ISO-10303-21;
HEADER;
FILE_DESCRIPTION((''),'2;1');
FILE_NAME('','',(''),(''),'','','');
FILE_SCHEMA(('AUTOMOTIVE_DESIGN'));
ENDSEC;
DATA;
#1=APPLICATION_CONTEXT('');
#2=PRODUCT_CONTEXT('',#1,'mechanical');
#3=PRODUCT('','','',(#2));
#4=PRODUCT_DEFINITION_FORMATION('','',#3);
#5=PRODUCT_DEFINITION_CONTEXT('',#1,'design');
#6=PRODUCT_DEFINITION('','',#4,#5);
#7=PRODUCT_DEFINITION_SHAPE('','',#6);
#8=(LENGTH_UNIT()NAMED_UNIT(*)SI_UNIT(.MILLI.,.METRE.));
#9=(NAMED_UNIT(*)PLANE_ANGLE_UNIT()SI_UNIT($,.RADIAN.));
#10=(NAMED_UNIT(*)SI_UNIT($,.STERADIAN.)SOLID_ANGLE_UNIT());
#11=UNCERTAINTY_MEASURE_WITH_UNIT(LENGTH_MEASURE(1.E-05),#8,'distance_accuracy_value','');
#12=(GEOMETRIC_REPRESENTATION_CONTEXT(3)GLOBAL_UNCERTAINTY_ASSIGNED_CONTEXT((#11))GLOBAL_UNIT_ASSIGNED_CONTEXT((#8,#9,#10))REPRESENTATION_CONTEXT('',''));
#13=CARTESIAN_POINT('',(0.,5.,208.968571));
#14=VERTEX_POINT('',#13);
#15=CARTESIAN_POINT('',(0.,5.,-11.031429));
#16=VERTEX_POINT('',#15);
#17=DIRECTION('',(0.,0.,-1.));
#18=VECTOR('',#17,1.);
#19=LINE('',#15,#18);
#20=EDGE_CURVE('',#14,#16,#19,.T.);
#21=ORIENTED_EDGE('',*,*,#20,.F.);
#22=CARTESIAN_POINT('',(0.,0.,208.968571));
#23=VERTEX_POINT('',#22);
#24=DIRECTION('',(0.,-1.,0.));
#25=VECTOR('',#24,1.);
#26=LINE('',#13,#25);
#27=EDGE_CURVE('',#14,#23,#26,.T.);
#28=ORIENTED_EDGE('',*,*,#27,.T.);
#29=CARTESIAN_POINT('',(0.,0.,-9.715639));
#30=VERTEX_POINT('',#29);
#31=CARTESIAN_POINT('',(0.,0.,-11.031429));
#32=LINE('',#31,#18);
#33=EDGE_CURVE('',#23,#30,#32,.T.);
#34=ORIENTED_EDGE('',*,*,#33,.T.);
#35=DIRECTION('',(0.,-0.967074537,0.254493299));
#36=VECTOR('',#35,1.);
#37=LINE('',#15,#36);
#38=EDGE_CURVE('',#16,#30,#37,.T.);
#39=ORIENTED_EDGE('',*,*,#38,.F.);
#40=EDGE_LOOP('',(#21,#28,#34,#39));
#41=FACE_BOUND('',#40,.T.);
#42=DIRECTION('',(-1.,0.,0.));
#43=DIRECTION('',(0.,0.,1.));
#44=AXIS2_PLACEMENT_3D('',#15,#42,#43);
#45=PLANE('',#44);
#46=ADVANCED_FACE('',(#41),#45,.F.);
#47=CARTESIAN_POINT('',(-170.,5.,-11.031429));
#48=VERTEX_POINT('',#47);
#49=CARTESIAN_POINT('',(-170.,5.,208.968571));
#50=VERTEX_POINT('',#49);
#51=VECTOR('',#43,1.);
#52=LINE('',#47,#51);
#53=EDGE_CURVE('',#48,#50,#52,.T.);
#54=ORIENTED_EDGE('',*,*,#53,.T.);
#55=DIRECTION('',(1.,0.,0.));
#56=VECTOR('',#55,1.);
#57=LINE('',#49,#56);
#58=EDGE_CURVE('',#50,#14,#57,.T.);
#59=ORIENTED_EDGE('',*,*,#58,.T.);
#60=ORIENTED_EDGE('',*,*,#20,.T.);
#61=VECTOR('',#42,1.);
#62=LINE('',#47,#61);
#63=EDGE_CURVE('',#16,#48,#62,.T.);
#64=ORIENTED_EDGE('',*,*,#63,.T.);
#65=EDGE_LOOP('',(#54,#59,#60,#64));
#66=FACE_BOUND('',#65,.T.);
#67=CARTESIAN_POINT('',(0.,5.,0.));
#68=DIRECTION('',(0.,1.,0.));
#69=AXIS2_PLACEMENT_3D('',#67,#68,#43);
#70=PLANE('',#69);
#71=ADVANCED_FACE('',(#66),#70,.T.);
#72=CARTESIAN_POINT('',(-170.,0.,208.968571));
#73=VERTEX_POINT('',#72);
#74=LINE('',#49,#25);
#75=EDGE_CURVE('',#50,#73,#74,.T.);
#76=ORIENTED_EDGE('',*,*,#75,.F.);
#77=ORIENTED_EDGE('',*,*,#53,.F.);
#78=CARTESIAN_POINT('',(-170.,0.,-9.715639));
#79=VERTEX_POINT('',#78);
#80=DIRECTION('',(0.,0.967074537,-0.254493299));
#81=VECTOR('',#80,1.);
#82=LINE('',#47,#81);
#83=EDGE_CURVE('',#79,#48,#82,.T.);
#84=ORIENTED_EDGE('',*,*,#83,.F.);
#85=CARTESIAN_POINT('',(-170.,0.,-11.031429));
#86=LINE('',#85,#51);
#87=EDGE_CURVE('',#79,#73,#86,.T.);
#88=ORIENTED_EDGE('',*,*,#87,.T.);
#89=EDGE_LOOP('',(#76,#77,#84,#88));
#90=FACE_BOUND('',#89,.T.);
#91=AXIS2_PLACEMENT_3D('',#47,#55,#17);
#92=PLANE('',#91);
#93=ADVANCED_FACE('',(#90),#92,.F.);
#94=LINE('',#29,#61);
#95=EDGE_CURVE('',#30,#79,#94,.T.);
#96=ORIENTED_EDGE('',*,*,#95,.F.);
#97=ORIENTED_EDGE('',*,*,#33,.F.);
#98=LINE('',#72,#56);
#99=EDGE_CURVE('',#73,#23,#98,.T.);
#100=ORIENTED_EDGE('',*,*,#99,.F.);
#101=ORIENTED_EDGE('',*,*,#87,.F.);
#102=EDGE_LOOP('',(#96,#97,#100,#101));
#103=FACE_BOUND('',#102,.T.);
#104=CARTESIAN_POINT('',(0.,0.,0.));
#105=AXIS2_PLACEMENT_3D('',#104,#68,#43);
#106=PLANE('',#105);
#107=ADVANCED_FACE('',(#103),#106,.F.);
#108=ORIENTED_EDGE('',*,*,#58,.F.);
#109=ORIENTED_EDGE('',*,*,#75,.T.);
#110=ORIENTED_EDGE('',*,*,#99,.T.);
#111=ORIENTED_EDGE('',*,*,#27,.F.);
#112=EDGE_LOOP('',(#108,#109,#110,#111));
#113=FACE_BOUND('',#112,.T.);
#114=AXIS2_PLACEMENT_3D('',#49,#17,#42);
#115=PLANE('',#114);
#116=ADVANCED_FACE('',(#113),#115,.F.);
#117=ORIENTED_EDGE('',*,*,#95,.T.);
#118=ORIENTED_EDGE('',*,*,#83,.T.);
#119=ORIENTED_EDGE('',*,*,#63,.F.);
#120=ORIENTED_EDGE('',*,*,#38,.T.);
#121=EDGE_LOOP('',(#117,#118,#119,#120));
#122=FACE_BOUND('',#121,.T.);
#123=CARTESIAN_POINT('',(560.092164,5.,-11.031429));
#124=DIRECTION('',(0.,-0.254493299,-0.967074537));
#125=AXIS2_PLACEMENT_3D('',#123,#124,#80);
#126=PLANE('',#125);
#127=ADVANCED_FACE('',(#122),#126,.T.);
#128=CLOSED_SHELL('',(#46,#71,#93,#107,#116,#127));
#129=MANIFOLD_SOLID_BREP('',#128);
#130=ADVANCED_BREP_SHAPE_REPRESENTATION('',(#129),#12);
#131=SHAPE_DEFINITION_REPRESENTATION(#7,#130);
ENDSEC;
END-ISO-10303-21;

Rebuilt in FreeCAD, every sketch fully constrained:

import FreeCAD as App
import Part
import Sketcher
Q = App.Units.Quantity

doc = App.newDocument("Part")
body = doc.addObject("PartDesign::Body", "Body")

# Sketch on XZ plane
sketch1 = body.newObject("Sketcher::SketchObject", "Sketch")
sketch1.AttachmentSupport = (doc.getObject("XZ_Plane"), [""])
sketch1.MapMode = "FlatFace"
sketch1.addGeometry([
    Part.LineSegment(App.Vector(-170, -11, 0), App.Vector(-170, 209, 0)),
    Part.LineSegment(App.Vector(-170, 209, 0), App.Vector(0, 209, 0)),
    Part.LineSegment(App.Vector(0, 209, 0), App.Vector(0, -11, 0)),
    Part.LineSegment(App.Vector(0, -11, 0), App.Vector(-170, -11, 0)),
], False)
sketch1.addConstraint([
    Sketcher.Constraint("Coincident", 0, 2, 1, 1),
    Sketcher.Constraint("Coincident", 1, 2, 2, 1),
    Sketcher.Constraint("Coincident", 2, 2, 3, 1),
    Sketcher.Constraint("Coincident", 3, 2, 0, 1),
    Sketcher.Constraint("Vertical", 0),
    Sketcher.Constraint("Horizontal", 1),
    Sketcher.Constraint("Vertical", 2),
    Sketcher.Constraint("Horizontal", 3),
    Sketcher.Constraint("PointOnObject", 1, 2, -2),
    Sketcher.Constraint("DistanceX", 1, 1, 1, 2, Q("170 mm")),
    Sketcher.Constraint("DistanceY", 0, 1, 0, 2, Q("220 mm")),
    Sketcher.Constraint("DistanceY", -1, 1, 0, 2, Q("208.968571 mm")),
])
pad1 = body.newObject("PartDesign::Pad", "Pad")
pad1.Profile = sketch1
pad1.Length = 5
pad1.Reversed = True

# Sketch on YZ plane
sketch2 = body.newObject("Sketcher::SketchObject", "Sketch001")
sketch2.AttachmentSupport = (doc.getObject("YZ_Plane"), [""])
sketch2.MapMode = "FlatFace"
sketch2.addGeometry([
    Part.LineSegment(App.Vector(440, -126, 0), App.Vector(5, -11, 0)),  # 0
    Part.LineSegment(App.Vector(5, -11, 0), App.Vector(-8, -8, 0)),  # 1
    Part.LineSegment(App.Vector(-8, -8, 0), App.Vector(-443, 107, 0)),  # 2
    Part.LineSegment(App.Vector(-443, 107, 0), App.Vector(-672, -764, 0)),  # 3
    Part.LineSegment(App.Vector(-672, -764, 0), App.Vector(211, -996, 0)),  # 4
    Part.LineSegment(App.Vector(211, -996, 0), App.Vector(440, -126, 0)),  # 5
], False)
sketch2.addConstraint([
    Sketcher.Constraint("Coincident", 0, 2, 1, 1),
    Sketcher.Constraint("Coincident", 1, 2, 2, 1),
    Sketcher.Constraint("Coincident", 2, 2, 3, 1),
    Sketcher.Constraint("Coincident", 3, 2, 4, 1),
    Sketcher.Constraint("Coincident", 4, 2, 5, 1),
    Sketcher.Constraint("Coincident", 5, 2, 0, 1),
    Sketcher.Constraint("Parallel", 0, 1),
    Sketcher.Constraint("Parallel", 1, 2),
    Sketcher.Constraint("Perpendicular", 2, 3),
    Sketcher.Constraint("Perpendicular", 3, 4),
    Sketcher.Constraint("Perpendicular", 4, 5),
    Sketcher.Constraint("Equal", 0, 2),
    Sketcher.Constraint("DistanceX", -1, 1, 0, 2, Q("5 mm")),
    Sketcher.Constraint("DistanceX", 1, 2, -1, 1, Q("7.522 mm")),
    Sketcher.Constraint("DistanceY", 1, 2, 2, 2, Q("114.550901 mm")),
    Sketcher.Constraint("DistanceX", 3, 2, 2, 2, Q("229.101801 mm")),
    Sketcher.Constraint("Distance", 0, Q("450.113622 mm")),
    Sketcher.Constraint("DistanceY", 0, 2, -1, 1, Q("11.031429 mm")),
])
pocket1 = body.newObject("PartDesign::Pocket", "Pocket")
pocket1.Profile = sketch2
pocket1.Type = "ThroughAll"
pocket1.Midplane = True

doc.recompute()
